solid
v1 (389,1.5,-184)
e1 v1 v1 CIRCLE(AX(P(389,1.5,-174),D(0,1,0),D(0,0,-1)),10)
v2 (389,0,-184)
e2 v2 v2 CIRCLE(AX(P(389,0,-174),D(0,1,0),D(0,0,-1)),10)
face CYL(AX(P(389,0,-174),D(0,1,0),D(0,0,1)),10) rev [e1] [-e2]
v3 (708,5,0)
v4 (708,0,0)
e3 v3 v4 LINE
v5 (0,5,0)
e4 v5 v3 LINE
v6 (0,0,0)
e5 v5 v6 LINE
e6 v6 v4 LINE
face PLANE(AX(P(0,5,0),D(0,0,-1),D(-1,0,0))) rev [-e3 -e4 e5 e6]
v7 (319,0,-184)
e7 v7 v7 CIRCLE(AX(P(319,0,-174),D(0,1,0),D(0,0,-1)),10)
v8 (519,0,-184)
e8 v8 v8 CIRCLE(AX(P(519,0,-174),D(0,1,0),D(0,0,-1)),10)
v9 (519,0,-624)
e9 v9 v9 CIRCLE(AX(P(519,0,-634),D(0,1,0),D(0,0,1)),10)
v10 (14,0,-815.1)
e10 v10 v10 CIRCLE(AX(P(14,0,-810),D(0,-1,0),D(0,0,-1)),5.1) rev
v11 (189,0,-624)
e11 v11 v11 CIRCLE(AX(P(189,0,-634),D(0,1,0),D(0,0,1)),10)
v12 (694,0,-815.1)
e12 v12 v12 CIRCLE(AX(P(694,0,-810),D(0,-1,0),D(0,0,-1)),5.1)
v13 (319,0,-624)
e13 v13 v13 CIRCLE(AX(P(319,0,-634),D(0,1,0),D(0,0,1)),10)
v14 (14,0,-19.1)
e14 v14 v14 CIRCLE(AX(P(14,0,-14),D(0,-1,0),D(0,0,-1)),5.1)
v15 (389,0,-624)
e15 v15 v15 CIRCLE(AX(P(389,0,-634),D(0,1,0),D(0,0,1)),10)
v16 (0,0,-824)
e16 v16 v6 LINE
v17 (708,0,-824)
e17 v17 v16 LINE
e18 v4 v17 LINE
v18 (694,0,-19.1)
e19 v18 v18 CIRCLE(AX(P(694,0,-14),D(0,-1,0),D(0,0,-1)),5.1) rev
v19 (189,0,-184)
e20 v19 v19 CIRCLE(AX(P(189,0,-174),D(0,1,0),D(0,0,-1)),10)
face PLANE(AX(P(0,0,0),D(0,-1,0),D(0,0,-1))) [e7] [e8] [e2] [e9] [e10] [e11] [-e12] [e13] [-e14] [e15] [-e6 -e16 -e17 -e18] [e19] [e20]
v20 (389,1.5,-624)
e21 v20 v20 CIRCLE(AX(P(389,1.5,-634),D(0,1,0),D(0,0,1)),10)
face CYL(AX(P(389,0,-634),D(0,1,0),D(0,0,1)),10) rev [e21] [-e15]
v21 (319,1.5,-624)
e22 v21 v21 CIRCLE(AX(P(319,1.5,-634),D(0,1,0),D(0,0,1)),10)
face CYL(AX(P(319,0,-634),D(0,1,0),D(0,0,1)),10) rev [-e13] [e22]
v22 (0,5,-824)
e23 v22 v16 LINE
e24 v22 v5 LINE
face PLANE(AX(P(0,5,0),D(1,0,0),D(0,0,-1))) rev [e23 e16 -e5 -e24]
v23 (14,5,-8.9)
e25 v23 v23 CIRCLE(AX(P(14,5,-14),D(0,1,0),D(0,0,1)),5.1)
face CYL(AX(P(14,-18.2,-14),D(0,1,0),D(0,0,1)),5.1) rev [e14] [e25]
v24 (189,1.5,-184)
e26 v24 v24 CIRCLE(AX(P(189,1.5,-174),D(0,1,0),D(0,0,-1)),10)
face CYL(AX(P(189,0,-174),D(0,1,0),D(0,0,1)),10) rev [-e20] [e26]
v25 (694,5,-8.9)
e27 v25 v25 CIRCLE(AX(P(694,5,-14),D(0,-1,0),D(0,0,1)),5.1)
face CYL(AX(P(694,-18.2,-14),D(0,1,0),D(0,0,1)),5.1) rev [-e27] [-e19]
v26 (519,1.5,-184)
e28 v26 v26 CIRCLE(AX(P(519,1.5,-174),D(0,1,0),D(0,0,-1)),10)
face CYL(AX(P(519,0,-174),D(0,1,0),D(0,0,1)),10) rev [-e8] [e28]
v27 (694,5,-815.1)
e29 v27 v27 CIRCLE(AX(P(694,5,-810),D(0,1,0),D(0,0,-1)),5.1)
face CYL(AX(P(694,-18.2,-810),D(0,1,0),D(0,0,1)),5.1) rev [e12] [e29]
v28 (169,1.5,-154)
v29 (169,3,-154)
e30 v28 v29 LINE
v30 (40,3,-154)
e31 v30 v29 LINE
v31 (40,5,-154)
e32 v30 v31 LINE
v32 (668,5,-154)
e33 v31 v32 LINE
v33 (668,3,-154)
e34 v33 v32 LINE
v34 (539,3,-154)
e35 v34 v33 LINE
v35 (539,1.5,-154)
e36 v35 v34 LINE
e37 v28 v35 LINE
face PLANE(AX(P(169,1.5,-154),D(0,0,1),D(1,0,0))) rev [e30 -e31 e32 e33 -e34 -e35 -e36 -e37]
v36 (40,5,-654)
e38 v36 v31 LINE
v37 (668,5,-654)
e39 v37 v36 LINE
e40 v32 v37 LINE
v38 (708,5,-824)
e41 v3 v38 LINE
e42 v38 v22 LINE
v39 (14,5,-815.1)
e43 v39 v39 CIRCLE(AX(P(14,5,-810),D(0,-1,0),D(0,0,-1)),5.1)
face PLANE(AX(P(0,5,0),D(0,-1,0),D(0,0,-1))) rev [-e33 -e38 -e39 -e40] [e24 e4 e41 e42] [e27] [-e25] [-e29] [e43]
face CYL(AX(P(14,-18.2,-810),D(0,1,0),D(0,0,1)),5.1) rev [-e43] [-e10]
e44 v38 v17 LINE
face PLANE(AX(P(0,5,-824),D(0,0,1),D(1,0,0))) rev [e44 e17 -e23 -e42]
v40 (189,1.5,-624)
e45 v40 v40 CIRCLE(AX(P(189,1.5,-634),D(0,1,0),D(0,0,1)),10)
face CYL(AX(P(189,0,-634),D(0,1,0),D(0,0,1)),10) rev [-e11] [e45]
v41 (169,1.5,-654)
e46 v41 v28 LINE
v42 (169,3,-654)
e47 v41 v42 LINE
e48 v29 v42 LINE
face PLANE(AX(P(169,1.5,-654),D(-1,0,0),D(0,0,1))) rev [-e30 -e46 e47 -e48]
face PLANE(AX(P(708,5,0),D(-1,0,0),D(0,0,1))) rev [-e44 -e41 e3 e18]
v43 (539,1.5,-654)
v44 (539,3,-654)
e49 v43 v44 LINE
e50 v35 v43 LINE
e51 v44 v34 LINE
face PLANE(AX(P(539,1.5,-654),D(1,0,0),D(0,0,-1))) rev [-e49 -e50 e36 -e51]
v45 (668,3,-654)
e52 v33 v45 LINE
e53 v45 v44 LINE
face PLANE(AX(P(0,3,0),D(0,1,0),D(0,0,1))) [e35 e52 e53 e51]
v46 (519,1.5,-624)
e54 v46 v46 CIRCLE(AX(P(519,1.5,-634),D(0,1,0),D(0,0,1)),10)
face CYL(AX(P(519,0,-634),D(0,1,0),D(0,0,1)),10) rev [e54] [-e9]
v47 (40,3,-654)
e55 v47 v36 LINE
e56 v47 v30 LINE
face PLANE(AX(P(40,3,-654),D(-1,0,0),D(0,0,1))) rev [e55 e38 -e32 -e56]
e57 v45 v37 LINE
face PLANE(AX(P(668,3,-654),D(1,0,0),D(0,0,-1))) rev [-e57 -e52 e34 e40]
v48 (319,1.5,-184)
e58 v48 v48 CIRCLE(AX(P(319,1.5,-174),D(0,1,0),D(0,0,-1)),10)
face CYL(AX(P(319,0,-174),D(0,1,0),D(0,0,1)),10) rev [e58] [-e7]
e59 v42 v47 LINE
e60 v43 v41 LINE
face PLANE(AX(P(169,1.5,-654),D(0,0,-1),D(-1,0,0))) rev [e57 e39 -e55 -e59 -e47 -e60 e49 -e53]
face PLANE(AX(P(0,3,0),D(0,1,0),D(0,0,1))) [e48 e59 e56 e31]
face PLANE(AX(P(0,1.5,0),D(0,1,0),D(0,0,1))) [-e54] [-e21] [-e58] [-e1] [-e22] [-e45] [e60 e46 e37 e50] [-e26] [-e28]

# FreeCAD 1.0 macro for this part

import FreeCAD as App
import Part
import Sketcher

V = App.Vector


def add_polygon(sketch, points):
    """Adds a closed chain of lines whose ends are joined by coincident constraints."""
    first, n = sketch.GeometryCount, len(points)
    for a, b in zip(points, points[1:] + points[:1]):
        sketch.addGeometry(Part.LineSegment(App.Vector(*a, 0), App.Vector(*b, 0)), False)
    for i in range(n):
        sketch.addConstraint(Sketcher.Constraint("Coincident", first + i, 2, first + (i + 1) % n, 1))

doc = App.newDocument("Part")
params = doc.addObject("Spreadsheet::Sheet", "Params")
for row, (alias, value) in enumerate([
    ("sketch1_width", "708 mm"),
    ("sketch1_height", "824 mm"),
    ("pad1_length", "5 mm"),
    ("sketch2_width", "370 mm"),
    ("sketch2_height", "500 mm"),
    ("pocket1_length", "3.5 mm"),
    ("sketch3_width", "628 mm"),
    ("sketch3_height", "500 mm"),
    ("pocket2_length", "2 mm"),
    ("sketch4_diameter", "10.2 mm"),
    ("pocket3_length", "23.2 mm"),
    ("sketch5_diameter", "10.2 mm"),
    ("pocket4_length", "23.2 mm"),
    ("sketch6_diameter", "20 mm"),
], start=1):
    params.set(f"A{row}", alias)
    params.set(f"B{row}", "=" + value)
    params.setAlias(f"B{row}", alias)

body = doc.addObject("PartDesign::Body", "Body")

sketch1 = body.newObject("Sketcher::SketchObject", "Sketch")
sketch1.AttachmentSupport = (doc.getObject("XZ_Plane"), [""])
sketch1.MapMode = "FlatFace"
add_polygon(sketch1, [(0, -824), (0, 0), (708, 0), (708, -824)])
sketch1.addConstraint(Sketcher.Constraint("Vertical", 0))
sketch1.addConstraint(Sketcher.Constraint("Horizontal", 1))
sketch1.addConstraint(Sketcher.Constraint("Vertical", 2))
sketch1.addConstraint(Sketcher.Constraint("Horizontal", 3))
sketch1.addConstraint(Sketcher.Constraint("Coincident", 0, 2, -1, 1))
sketch1.addConstraint(Sketcher.Constraint("DistanceX", 1, 1, 1, 2, 708.0))
sketch1.addConstraint(Sketcher.Constraint("DistanceY", 0, 1, 0, 2, 824.0))
sketch1.setExpression("Constraints[9]", "Params.sketch1_width")
sketch1.setExpression("Constraints[10]", "Params.sketch1_height")
pad1 = body.newObject("PartDesign::Pad", "Pad")
pad1.Profile = sketch1
pad1.setExpression("Length", "Params.pad1_length")
pad1.Reversed = True

sketch2 = body.newObject("Sketcher::SketchObject", "Sketch001")
sketch2.AttachmentSupport = (doc.getObject("XZ_Plane"), [""])
sketch2.MapMode = "FlatFace"
sketch2.AttachmentOffset = App.Placement(V(0, 0, -5), App.Rotation())
add_polygon(sketch2, [(169, -654), (169, -154), (539, -154), (539, -654)])
sketch2.addConstraint(Sketcher.Constraint("Vertical", 0))
sketch2.addConstraint(Sketcher.Constraint("Horizontal", 1))
sketch2.addConstraint(Sketcher.Constraint("Vertical", 2))
sketch2.addConstraint(Sketcher.Constraint("Horizontal", 3))
sketch2.addConstraint(Sketcher.Constraint("DistanceX", 1, 1, 1, 2, 370.0))
sketch2.addConstraint(Sketcher.Constraint("DistanceY", 0, 1, 0, 2, 500.0))
sketch2.addConstraint(Sketcher.Constraint("DistanceX", -1, 1, 0, 2, 169.0))
sketch2.addConstraint(Sketcher.Constraint("DistanceY", 0, 2, -1, 1, 154.0))
sketch2.setExpression("Constraints[8]", "Params.sketch2_width")
sketch2.setExpression("Constraints[9]", "Params.sketch2_height")
pocket1 = body.newObject("PartDesign::Pocket", "Pocket")
pocket1.Profile = sketch2
pocket1.setExpression("Length", "Params.pocket1_length")
pocket1.Reversed = True

sketch3 = body.newObject("Sketcher::SketchObject", "Sketch002")
sketch3.AttachmentSupport = (doc.getObject("XZ_Plane"), [""])
sketch3.MapMode = "FlatFace"
sketch3.AttachmentOffset = App.Placement(V(0, 0, -5), App.Rotation())
add_polygon(sketch3, [(40, -654), (40, -154), (668, -154), (668, -654)])
sketch3.addConstraint(Sketcher.Constraint("Vertical", 0))
sketch3.addConstraint(Sketcher.Constraint("Horizontal", 1))
sketch3.addConstraint(Sketcher.Constraint("Vertical", 2))
sketch3.addConstraint(Sketcher.Constraint("Horizontal", 3))
sketch3.addConstraint(Sketcher.Constraint("DistanceX", 1, 1, 1, 2, 628.0))
sketch3.addConstraint(Sketcher.Constraint("DistanceY", 0, 1, 0, 2, 500.0))
sketch3.addConstraint(Sketcher.Constraint("DistanceX", -1, 1, 0, 2, 40.0))
sketch3.addConstraint(Sketcher.Constraint("DistanceY", 0, 2, -1, 1, 154.0))
sketch3.setExpression("Constraints[8]", "Params.sketch3_width")
sketch3.setExpression("Constraints[9]", "Params.sketch3_height")
pocket2 = body.newObject("PartDesign::Pocket", "Pocket001")
pocket2.Profile = sketch3
pocket2.setExpression("Length", "Params.pocket2_length")
pocket2.Reversed = True

sketch4 = body.newObject("Sketcher::SketchObject", "Sketch003")
sketch4.AttachmentSupport = (doc.getObject("XZ_Plane"), [""])
sketch4.MapMode = "FlatFace"
sketch4.AttachmentOffset = App.Placement(V(0, 0, -5), App.Rotation())
sketch4.addGeometry(Part.Circle(V(14, -14, 0), V(0, 0, 1), 5.1), False)
sketch4.addConstraint(Sketcher.Constraint("Diameter", 0, 10.2))
sketch4.addConstraint(Sketcher.Constraint("DistanceX", -1, 1, 0, 3, 14.0))
sketch4.addConstraint(Sketcher.Constraint("DistanceY", 0, 3, -1, 1, 14.0))
sketch4.setExpression("Constraints[0]", "Params.sketch4_diameter")
pocket3 = body.newObject("PartDesign::Pocket", "Pocket002")
pocket3.Profile = sketch4
pocket3.setExpression("Length", "Params.pocket3_length")
pocket3.Reversed = True
doc.recompute()

datumplane = body.newObject("PartDesign::Plane", "DatumPlane")
datumplane.AttachmentSupport = (doc.getObject("YZ_Plane"), [""])
datumplane.MapMode = "FlatFace"
datumplane.AttachmentOffset = App.Placement(V(0, 0, 354), App.Rotation())
mirrored = body.newObject("PartDesign::Mirrored", "Mirrored")
mirrored.Originals = [pocket3]
mirrored.MirrorPlane = (datumplane, [""])
body.Tip = mirrored
doc.recompute()

datumplane2 = body.newObject("PartDesign::Plane", "DatumPlane001")
datumplane2.AttachmentSupport = (doc.getObject("XY_Plane"), [""])
datumplane2.MapMode = "FlatFace"
datumplane2.AttachmentOffset = App.Placement(V(0, 0, -412), App.Rotation())
mirrored2 = body.newObject("PartDesign::Mirrored", "Mirrored001")
mirrored2.Originals = [pocket3]
mirrored2.MirrorPlane = (datumplane2, [""])
body.Tip = mirrored2

sketch5 = body.newObject("Sketcher::SketchObject", "Sketch004")
sketch5.AttachmentSupport = (doc.getObject("XZ_Plane"), [""])
sketch5.MapMode = "FlatFace"
sketch5.AttachmentOffset = App.Placement(V(0, 0, -5), App.Rotation())
sketch5.addGeometry(Part.Circle(V(694, -810, 0), V(0, 0, 1), 5.1), False)
sketch5.addConstraint(Sketcher.Constraint("Diameter", 0, 10.2))
sketch5.addConstraint(Sketcher.Constraint("DistanceX", -1, 1, 0, 3, 694.0))
sketch5.addConstraint(Sketcher.Constraint("DistanceY", 0, 3, -1, 1, 810.0))
sketch5.setExpression("Constraints[0]", "Params.sketch5_diameter")
pocket4 = body.newObject("PartDesign::Pocket", "Pocket003")
pocket4.Profile = sketch5
pocket4.setExpression("Length", "Params.pocket4_length")
pocket4.Reversed = True

sketch6 = body.newObject("Sketcher::SketchObject", "Sketch005")
sketch6.AttachmentSupport = (doc.getObject("XZ_Plane"), [""])
sketch6.MapMode = "FlatFace"
sketch6.AttachmentOffset = App.Placement(V(0, 0, -1.5), App.Rotation())
sketch6.addGeometry(Part.Circle(V(189, -634, 0), V(0, 0, 1), 10), False)
sketch6.addGeometry(Part.Circle(V(319, -634, 0), V(0, 0, 1), 10), False)
sketch6.addGeometry(Part.Circle(V(389, -634, 0), V(0, 0, 1), 10), False)
sketch6.addGeometry(Part.Circle(V(519, -634, 0), V(0, 0, 1), 10), False)
sketch6.addGeometry(Part.Circle(V(519, -174, 0), V(0, 0, 1), 10), False)
sketch6.addGeometry(Part.Circle(V(389, -174, 0), V(0, 0, 1), 10), False)
sketch6.addGeometry(Part.Circle(V(319, -174, 0), V(0, 0, 1), 10), False)
sketch6.addGeometry(Part.Circle(V(189, -174, 0), V(0, 0, 1), 10), False)
sketch6.addConstraint(Sketcher.Constraint("Equal", 0, 1))
sketch6.addConstraint(Sketcher.Constraint("Equal", 1, 2))
sketch6.addConstraint(Sketcher.Constraint("Equal", 2, 3))
sketch6.addConstraint(Sketcher.Constraint("Equal", 3, 4))
sketch6.addConstraint(Sketcher.Constraint("Equal", 4, 5))
sketch6.addConstraint(Sketcher.Constraint("Equal", 5, 6))
sketch6.addConstraint(Sketcher.Constraint("Equal", 6, 7))
sketch6.addConstraint(Sketcher.Constraint("Horizontal", 0, 3, 1, 3))
sketch6.addConstraint(Sketcher.Constraint("Horizontal", 1, 3, 2, 3))
sketch6.addConstraint(Sketcher.Constraint("Horizontal", 2, 3, 3, 3))
sketch6.addConstraint(Sketcher.Constraint("Horizontal", 4, 3, 5, 3))
sketch6.addConstraint(Sketcher.Constraint("Horizontal", 5, 3, 6, 3))
sketch6.addConstraint(Sketcher.Constraint("Horizontal", 6, 3, 7, 3))
sketch6.addConstraint(Sketcher.Constraint("Vertical", 3, 3, 4, 3))
sketch6.addConstraint(Sketcher.Constraint("Vertical", 2, 3, 5, 3))
sketch6.addConstraint(Sketcher.Constraint("Vertical", 1, 3, 6, 3))
sketch6.addConstraint(Sketcher.Constraint("Vertical", 0, 3, 7, 3))
sketch6.addConstraint(Sketcher.Constraint("Diameter", 0, 20.0))
sketch6.addConstraint(Sketcher.Constraint("DistanceX", -1, 1, 0, 3, 189.0))
sketch6.addConstraint(Sketcher.Constraint("DistanceY", 0, 3, -1, 1, 634.0))
sketch6.addConstraint(Sketcher.Constraint("DistanceX", -1, 1, 1, 3, 319.0))
sketch6.addConstraint(Sketcher.Constraint("DistanceX", -1, 1, 2, 3, 389.0))
sketch6.addConstraint(Sketcher.Constraint("DistanceX", -1, 1, 3, 3, 519.0))
sketch6.addConstraint(Sketcher.Constraint("DistanceY", 4, 3, -1, 1, 174.0))
sketch6.setExpression("Constraints[17]", "Params.sketch6_diameter")
pocket5 = body.newObject("PartDesign::Pocket", "Pocket004")
pocket5.Profile = sketch6
pocket5.Type = "ThroughAll"
pocket5.Reversed = True

doc.recompute()
